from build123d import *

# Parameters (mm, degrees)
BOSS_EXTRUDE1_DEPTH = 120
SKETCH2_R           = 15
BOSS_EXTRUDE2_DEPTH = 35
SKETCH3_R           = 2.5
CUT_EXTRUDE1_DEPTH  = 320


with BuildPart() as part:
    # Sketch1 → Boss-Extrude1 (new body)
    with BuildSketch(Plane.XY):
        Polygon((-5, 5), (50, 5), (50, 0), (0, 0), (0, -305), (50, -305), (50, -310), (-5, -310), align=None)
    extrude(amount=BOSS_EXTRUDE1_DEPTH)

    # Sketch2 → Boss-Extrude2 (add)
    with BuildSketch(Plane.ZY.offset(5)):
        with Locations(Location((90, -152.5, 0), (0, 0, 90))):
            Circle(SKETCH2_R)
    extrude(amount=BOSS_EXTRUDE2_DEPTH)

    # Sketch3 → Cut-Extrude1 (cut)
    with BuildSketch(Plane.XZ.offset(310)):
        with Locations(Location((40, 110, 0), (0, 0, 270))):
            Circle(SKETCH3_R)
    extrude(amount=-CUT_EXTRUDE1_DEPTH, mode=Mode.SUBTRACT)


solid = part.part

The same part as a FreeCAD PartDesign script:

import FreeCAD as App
import Part
import Sketcher


def add_polygon(sketch, points):
    """Adds a closed chain of lines whose ends are joined by coincident constraints."""
    first, n = sketch.GeometryCount, len(points)
    for a, b in zip(points, points[1:] + points[:1]):
        sketch.addGeometry(Part.LineSegment(App.Vector(*a, 0), App.Vector(*b, 0)), False)
    for i in range(n):
        sketch.addConstraint(Sketcher.Constraint("Coincident", first + i, 2, first + (i + 1) % n, 1))

doc = App.newDocument("Part")
body = doc.addObject("PartDesign::Body", "Body")

sketch1 = doc.addObject("Sketcher::SketchObject", "Sketch")
body.addObject(sketch1)
sketch1.AttachmentSupport = (doc.XY_Plane, [""])
sketch1.MapMode = "FlatFace"
add_polygon(sketch1, [(50, 5), (-5, 5), (-5, -310), (50, -310), (50, -305), (0, -305), (0, 0), (50, 0)])
sketch1.addConstraint(Sketcher.Constraint("Horizontal", 0))
sketch1.addConstraint(Sketcher.Constraint("Vertical", 1))
sketch1.addConstraint(Sketcher.Constraint("Horizontal", 2))
sketch1.addConstraint(Sketcher.Constraint("Vertical", 3))
sketch1.addConstraint(Sketcher.Constraint("Horizontal", 4))
sketch1.addConstraint(Sketcher.Constraint("Vertical", 5))
sketch1.addConstraint(Sketcher.Constraint("Horizontal", 6))
sketch1.addConstraint(Sketcher.Constraint("Vertical", 7))
sketch1.addConstraint(Sketcher.Constraint("Coincident", 5, 2, -1, 1))
sketch1.addConstraint(Sketcher.Constraint("Vertical", 3, 2, 6, 2))
sketch1.addConstraint(Sketcher.Constraint("Equal", 3, 7))
sketch1.addConstraint(Sketcher.Constraint("DistanceX", 0, 2, 0, 1, 55.0))
sketch1.addConstraint(Sketcher.Constraint("DistanceX", 4, 2, 4, 1, 50.0))
sketch1.addConstraint(Sketcher.Constraint("DistanceY", 1, 2, 1, 1, 315.0))
sketch1.addConstraint(Sketcher.Constraint("DistanceY", 3, 1, 3, 2, 5.0))
pad1 = doc.addObject("PartDesign::Pad", "Pad")
body.addObject(pad1)
pad1.Profile = sketch1
pad1.Length = 120

sketch2 = doc.addObject("Sketcher::SketchObject", "Sketch001")
body.addObject(sketch2)
sketch2.AttachmentSupport = (doc.YZ_Plane, [""])
sketch2.MapMode = "FlatFace"
sketch2.AttachmentOffset = App.Placement(App.Vector(0, 0, -5), App.Rotation())
sketch2.addGeometry(Part.Circle(App.Vector(-152, 90, 0), App.Vector(0, 0, 1), 15), False)
sketch2.addConstraint(Sketcher.Constraint("Diameter", 0, 30.0))
sketch2.addConstraint(Sketcher.Constraint("DistanceY", -1, 1, 0, 3, 90.0))
sketch2.addConstraint(Sketcher.Constraint("DistanceX", 0, 3, -1, 1, 152.5))
pad2 = doc.addObject("PartDesign::Pad", "Pad001")
body.addObject(pad2)
pad2.Profile = sketch2
pad2.Length = 35
pad2.Reversed = True

sketch3 = doc.addObject("Sketcher::SketchObject", "Sketch002")
body.addObject(sketch3)
sketch3.AttachmentSupport = (doc.XZ_Plane, [""])
sketch3.MapMode = "FlatFace"
sketch3.AttachmentOffset = App.Placement(App.Vector(0, 0, 310), App.Rotation())
sketch3.addGeometry(Part.Circle(App.Vector(40, 110, 0), App.Vector(0, 0, 1), 2.5), False)
sketch3.addConstraint(Sketcher.Constraint("Diameter", 0, 5.0))
sketch3.addConstraint(Sketcher.Constraint("DistanceX", -1, 1, 0, 3, 40.0))
sketch3.addConstraint(Sketcher.Constraint("DistanceY", -1, 1, 0, 3, 110.0))
pocket1 = doc.addObject("PartDesign::Pocket", "Pocket")
body.addObject(pocket1)
pocket1.Profile = sketch3
pocket1.Length = 320

doc.recompute()
